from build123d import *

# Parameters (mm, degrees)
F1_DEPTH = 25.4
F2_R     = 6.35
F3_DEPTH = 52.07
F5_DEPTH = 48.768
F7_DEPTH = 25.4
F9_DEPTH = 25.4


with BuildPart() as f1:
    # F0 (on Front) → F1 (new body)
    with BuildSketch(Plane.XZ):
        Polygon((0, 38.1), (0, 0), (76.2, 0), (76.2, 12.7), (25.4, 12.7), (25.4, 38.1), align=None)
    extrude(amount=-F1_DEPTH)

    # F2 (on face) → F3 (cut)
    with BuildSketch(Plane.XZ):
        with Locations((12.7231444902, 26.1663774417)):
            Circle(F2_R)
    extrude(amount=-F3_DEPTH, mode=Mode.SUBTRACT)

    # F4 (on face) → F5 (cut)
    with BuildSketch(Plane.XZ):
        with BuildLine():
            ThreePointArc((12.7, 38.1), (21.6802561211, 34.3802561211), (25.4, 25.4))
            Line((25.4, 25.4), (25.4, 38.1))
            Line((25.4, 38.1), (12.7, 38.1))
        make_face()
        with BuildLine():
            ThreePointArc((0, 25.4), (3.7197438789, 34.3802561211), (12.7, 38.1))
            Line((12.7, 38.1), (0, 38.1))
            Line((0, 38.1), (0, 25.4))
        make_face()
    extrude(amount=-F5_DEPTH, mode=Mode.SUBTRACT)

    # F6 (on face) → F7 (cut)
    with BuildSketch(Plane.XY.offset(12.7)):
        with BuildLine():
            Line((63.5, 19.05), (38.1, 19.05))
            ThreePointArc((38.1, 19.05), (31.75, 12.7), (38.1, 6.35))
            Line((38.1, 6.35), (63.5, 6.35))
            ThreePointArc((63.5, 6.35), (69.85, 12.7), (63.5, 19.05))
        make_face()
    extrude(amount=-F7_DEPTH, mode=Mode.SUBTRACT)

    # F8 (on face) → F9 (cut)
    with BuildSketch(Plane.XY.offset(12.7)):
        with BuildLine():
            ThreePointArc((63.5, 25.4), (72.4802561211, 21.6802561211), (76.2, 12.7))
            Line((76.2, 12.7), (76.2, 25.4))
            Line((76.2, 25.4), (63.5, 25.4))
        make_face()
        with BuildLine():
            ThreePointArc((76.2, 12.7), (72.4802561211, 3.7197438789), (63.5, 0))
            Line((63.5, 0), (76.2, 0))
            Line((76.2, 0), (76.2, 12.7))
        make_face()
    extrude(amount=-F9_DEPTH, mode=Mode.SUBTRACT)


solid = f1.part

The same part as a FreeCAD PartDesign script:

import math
import FreeCAD as App
import Part
import Sketcher
Q = App.Units.Quantity

doc = App.newDocument("Part")
body = doc.addObject("PartDesign::Body", "Body")

# Sketch on XZ plane
sketch1 = body.newObject("Sketcher::SketchObject", "Sketch")
sketch1.AttachmentSupport = (doc.getObject("XZ_Plane"), [""])
sketch1.MapMode = "FlatFace"
sketch1.addGeometry([
    Part.LineSegment(App.Vector(0, 38.1, 0), App.Vector(0, 0, 0)),  # 0
    Part.LineSegment(App.Vector(0, 0, 0), App.Vector(76.2, 0, 0)),  # 1
    Part.LineSegment(App.Vector(76.2, 0, 0), App.Vector(76.2, 12.7, 0)),  # 2
    Part.LineSegment(App.Vector(76.2, 12.7, 0), App.Vector(25.4, 12.7, 0)),  # 3
    Part.LineSegment(App.Vector(25.4, 12.7, 0), App.Vector(25.4, 38.1, 0)),  # 4
    Part.LineSegment(App.Vector(25.4, 38.1, 0), App.Vector(0, 38.1, 0)),  # 5
], False)
sketch1.addConstraint([
    Sketcher.Constraint("Coincident", 0, 2, 1, 1),
    Sketcher.Constraint("Coincident", 1, 2, 2, 1),
    Sketcher.Constraint("Coincident", 2, 2, 3, 1),
    Sketcher.Constraint("Coincident", 3, 2, 4, 1),
    Sketcher.Constraint("Coincident", 4, 2, 5, 1),
    Sketcher.Constraint("Coincident", 5, 2, 0, 1),
    Sketcher.Constraint("Vertical", 0),
    Sketcher.Constraint("Horizontal", 1),
    Sketcher.Constraint("Vertical", 2),
    Sketcher.Constraint("Horizontal", 3),
    Sketcher.Constraint("Vertical", 4),
    Sketcher.Constraint("Horizontal", 5),
    Sketcher.Constraint("Coincident", 0, 2, -1, 1),
    Sketcher.Constraint("Equal", 5, 4),
    Sketcher.Constraint("DistanceX", 1, 1, 1, 2, Q("3 in")),
    Sketcher.Constraint("DistanceX", 3, 2, 3, 1, Q("2 in")),
    Sketcher.Constraint("DistanceY", 0, 2, 0, 1, Q("1.5 in")),
])
pad1 = body.newObject("PartDesign::Pad", "Pad")
pad1.Profile = sketch1
pad1.Length = Q("1 in")
pad1.Reversed = True

# Sketch on XZ plane
sketch2 = body.newObject("Sketcher::SketchObject", "Sketch001")
sketch2.AttachmentSupport = (doc.getObject("XZ_Plane"), [""])
sketch2.MapMode = "FlatFace"
sketch2.addGeometry(Part.Circle(App.Vector(12.723144, 26.166377, 0), App.Vector(0, 0, 1), 6.35), False)
sketch2.addConstraint([
    Sketcher.Constraint("Diameter", 0, Q("0.5 in")),
    Sketcher.Constraint("DistanceX", -1, 1, 0, 3, Q("12.723144 mm")),
    Sketcher.Constraint("DistanceY", -1, 1, 0, 3, Q("26.166377 mm")),
])
pocket1 = body.newObject("PartDesign::Pocket", "Pocket")
pocket1.Profile = sketch2
pocket1.Length = Q("2.05 in")

# Sketch on XZ plane
sketch3 = body.newObject("Sketcher::SketchObject", "Sketch002")
sketch3.AttachmentSupport = (doc.getObject("XZ_Plane"), [""])
sketch3.MapMode = "FlatFace"
sketch3.addGeometry([
    Part.ArcOfCircle(Part.Circle(App.Vector(12.7, 25.4, 0), App.Vector(0, 0, 1), 12.7), math.radians(0), math.radians(90)),  # 0
    Part.LineSegment(App.Vector(25.4, 25.4, 0), App.Vector(25.4, 38.1, 0)),  # 1
    Part.LineSegment(App.Vector(25.4, 38.1, 0), App.Vector(12.7, 38.1, 0)),  # 2
    Part.ArcOfCircle(Part.Circle(App.Vector(12.7, 25.4, 0), App.Vector(0, 0, 1), 12.7), math.radians(90), math.radians(180)),  # 3
    Part.LineSegment(App.Vector(12.7, 38.1, 0), App.Vector(0, 38.1, 0)),  # 4
    Part.LineSegment(App.Vector(0, 38.1, 0), App.Vector(0, 25.4, 0)),  # 5
], False)
sketch3.addConstraint([
    Sketcher.Constraint("Tangent", 0, 1, 1, 1),
    Sketcher.Constraint("Coincident", 1, 2, 2, 1),
    Sketcher.Constraint("Tangent", 2, 2, 0, 2),
    Sketcher.Constraint("Tangent", 3, 1, 4, 1),
    Sketcher.Constraint("Coincident", 4, 2, 5, 1),
    Sketcher.Constraint("Tangent", 5, 2, 3, 2),
    Sketcher.Constraint("Vertical", 1),
    Sketcher.Constraint("Horizontal", 2),
    Sketcher.Constraint("Horizontal", 4),
    Sketcher.Constraint("Vertical", 5),
    Sketcher.Constraint("Coincident", 3, 3, 0, 3),
    Sketcher.Constraint("Equal", 0, 3),
    Sketcher.Constraint("PointOnObject", 4, 2, -2),
    Sketcher.Constraint("Radius", 0, Q("0.5 in")),
    Sketcher.Constraint("DistanceY", -1, 1, 0, 3, Q("1 in")),
])
pocket2 = body.newObject("PartDesign::Pocket", "Pocket001")
pocket2.Profile = sketch3
pocket2.Length = Q("1.92 in")

# Sketch on XY plane
sketch4 = body.newObject("Sketcher::SketchObject", "Sketch003")
sketch4.AttachmentSupport = (doc.getObject("XY_Plane"), [""])
sketch4.MapMode = "FlatFace"
sketch4.AttachmentOffset = App.Placement(App.Vector(0, 0, 0.5 * 25.4), App.Rotation())
sketch4.addGeometry([
    Part.LineSegment(App.Vector(63.5, 19.05, 0), App.Vector(38.1, 19.05, 0)),
    Part.ArcOfCircle(Part.Circle(App.Vector(38.1, 12.7, 0), App.Vector(0, 0, 1), 6.35), math.radians(90), math.radians(270)),
    Part.LineSegment(App.Vector(38.1, 6.35, 0), App.Vector(63.5, 6.35, 0)),
    Part.ArcOfCircle(Part.Circle(App.Vector(63.5, 12.7, 0), App.Vector(0, 0, 1), 6.35), math.radians(-90), math.radians(90)),
], False)
sketch4.addConstraint([
    Sketcher.Constraint("Tangent", 0, 2, 1, 1),
    Sketcher.Constraint("Tangent", 1, 2, 2, 1),
    Sketcher.Constraint("Tangent", 2, 2, 3, 1),
    Sketcher.Constraint("Tangent", 3, 2, 0, 1),
    Sketcher.Constraint("Horizontal", 0),
    Sketcher.Constraint("Horizontal", 2),
    Sketcher.Constraint("DistanceX", 0, 2, 0, 1, Q("1 in")),
    Sketcher.Constraint("Radius", 1, Q("0.25 in")),
    Sketcher.Constraint("DistanceX", -1, 1, 1, 3, Q("1.5 in")),
    Sketcher.Constraint("DistanceY", -1, 1, 1, 3, Q("0.5 in")),
])
pocket3 = body.newObject("PartDesign::Pocket", "Pocket002")
pocket3.Profile = sketch4
pocket3.Length = Q("1 in")

# Sketch on XY plane
sketch5 = body.newObject("Sketcher::SketchObject", "Sketch004")
sketch5.AttachmentSupport = (doc.getObject("XY_Plane"), [""])
sketch5.MapMode = "FlatFace"
sketch5.AttachmentOffset = App.Placement(App.Vector(0, 0, 0.5 * 25.4), App.Rotation())
sketch5.addGeometry([
    Part.ArcOfCircle(Part.Circle(App.Vector(63.5, 12.7, 0), App.Vector(0, 0, 1), 12.7), math.radians(0), math.radians(90)),  # 0
    Part.LineSegment(App.Vector(76.2, 12.7, 0), App.Vector(76.2, 25.4, 0)),  # 1
    Part.LineSegment(App.Vector(76.2, 25.4, 0), App.Vector(63.5, 25.4, 0)),  # 2
    Part.ArcOfCircle(Part.Circle(App.Vector(63.5, 12.7, 0), App.Vector(0, 0, 1), 12.7), math.radians(-90), math.radians(0)),  # 3
    Part.LineSegment(App.Vector(63.5, 0, 0), App.Vector(76.2, 0, 0)),  # 4
    Part.LineSegment(App.Vector(76.2, 0, 0), App.Vector(76.2, 12.7, 0)),  # 5
], False)
sketch5.addConstraint([
    Sketcher.Constraint("Tangent", 0, 1, 1, 1),
    Sketcher.Constraint("Coincident", 1, 2, 2, 1),
    Sketcher.Constraint("Tangent", 2, 2, 0, 2),
    Sketcher.Constraint("Tangent", 3, 1, 4, 1),
    Sketcher.Constraint("Coincident", 4, 2, 5, 1),
    Sketcher.Constraint("Tangent", 5, 2, 3, 2),
    Sketcher.Constraint("Vertical", 1),
    Sketcher.Constraint("Horizontal", 2),
    Sketcher.Constraint("Horizontal", 4),
    Sketcher.Constraint("Vertical", 5),
    Sketcher.Constraint("Coincident", 3, 3, 0, 3),
    Sketcher.Constraint("Equal", 0, 3),
    Sketcher.Constraint("PointOnObject", 3, 1, -1),
    Sketcher.Constraint("Radius", 0, Q("0.5 in")),
    Sketcher.Constraint("DistanceX", -1, 1, 0, 1, Q("3 in")),
])
pocket4 = body.newObject("PartDesign::Pocket", "Pocket003")
pocket4.Profile = sketch5
pocket4.Length = Q("1 in")

doc.recompute()
